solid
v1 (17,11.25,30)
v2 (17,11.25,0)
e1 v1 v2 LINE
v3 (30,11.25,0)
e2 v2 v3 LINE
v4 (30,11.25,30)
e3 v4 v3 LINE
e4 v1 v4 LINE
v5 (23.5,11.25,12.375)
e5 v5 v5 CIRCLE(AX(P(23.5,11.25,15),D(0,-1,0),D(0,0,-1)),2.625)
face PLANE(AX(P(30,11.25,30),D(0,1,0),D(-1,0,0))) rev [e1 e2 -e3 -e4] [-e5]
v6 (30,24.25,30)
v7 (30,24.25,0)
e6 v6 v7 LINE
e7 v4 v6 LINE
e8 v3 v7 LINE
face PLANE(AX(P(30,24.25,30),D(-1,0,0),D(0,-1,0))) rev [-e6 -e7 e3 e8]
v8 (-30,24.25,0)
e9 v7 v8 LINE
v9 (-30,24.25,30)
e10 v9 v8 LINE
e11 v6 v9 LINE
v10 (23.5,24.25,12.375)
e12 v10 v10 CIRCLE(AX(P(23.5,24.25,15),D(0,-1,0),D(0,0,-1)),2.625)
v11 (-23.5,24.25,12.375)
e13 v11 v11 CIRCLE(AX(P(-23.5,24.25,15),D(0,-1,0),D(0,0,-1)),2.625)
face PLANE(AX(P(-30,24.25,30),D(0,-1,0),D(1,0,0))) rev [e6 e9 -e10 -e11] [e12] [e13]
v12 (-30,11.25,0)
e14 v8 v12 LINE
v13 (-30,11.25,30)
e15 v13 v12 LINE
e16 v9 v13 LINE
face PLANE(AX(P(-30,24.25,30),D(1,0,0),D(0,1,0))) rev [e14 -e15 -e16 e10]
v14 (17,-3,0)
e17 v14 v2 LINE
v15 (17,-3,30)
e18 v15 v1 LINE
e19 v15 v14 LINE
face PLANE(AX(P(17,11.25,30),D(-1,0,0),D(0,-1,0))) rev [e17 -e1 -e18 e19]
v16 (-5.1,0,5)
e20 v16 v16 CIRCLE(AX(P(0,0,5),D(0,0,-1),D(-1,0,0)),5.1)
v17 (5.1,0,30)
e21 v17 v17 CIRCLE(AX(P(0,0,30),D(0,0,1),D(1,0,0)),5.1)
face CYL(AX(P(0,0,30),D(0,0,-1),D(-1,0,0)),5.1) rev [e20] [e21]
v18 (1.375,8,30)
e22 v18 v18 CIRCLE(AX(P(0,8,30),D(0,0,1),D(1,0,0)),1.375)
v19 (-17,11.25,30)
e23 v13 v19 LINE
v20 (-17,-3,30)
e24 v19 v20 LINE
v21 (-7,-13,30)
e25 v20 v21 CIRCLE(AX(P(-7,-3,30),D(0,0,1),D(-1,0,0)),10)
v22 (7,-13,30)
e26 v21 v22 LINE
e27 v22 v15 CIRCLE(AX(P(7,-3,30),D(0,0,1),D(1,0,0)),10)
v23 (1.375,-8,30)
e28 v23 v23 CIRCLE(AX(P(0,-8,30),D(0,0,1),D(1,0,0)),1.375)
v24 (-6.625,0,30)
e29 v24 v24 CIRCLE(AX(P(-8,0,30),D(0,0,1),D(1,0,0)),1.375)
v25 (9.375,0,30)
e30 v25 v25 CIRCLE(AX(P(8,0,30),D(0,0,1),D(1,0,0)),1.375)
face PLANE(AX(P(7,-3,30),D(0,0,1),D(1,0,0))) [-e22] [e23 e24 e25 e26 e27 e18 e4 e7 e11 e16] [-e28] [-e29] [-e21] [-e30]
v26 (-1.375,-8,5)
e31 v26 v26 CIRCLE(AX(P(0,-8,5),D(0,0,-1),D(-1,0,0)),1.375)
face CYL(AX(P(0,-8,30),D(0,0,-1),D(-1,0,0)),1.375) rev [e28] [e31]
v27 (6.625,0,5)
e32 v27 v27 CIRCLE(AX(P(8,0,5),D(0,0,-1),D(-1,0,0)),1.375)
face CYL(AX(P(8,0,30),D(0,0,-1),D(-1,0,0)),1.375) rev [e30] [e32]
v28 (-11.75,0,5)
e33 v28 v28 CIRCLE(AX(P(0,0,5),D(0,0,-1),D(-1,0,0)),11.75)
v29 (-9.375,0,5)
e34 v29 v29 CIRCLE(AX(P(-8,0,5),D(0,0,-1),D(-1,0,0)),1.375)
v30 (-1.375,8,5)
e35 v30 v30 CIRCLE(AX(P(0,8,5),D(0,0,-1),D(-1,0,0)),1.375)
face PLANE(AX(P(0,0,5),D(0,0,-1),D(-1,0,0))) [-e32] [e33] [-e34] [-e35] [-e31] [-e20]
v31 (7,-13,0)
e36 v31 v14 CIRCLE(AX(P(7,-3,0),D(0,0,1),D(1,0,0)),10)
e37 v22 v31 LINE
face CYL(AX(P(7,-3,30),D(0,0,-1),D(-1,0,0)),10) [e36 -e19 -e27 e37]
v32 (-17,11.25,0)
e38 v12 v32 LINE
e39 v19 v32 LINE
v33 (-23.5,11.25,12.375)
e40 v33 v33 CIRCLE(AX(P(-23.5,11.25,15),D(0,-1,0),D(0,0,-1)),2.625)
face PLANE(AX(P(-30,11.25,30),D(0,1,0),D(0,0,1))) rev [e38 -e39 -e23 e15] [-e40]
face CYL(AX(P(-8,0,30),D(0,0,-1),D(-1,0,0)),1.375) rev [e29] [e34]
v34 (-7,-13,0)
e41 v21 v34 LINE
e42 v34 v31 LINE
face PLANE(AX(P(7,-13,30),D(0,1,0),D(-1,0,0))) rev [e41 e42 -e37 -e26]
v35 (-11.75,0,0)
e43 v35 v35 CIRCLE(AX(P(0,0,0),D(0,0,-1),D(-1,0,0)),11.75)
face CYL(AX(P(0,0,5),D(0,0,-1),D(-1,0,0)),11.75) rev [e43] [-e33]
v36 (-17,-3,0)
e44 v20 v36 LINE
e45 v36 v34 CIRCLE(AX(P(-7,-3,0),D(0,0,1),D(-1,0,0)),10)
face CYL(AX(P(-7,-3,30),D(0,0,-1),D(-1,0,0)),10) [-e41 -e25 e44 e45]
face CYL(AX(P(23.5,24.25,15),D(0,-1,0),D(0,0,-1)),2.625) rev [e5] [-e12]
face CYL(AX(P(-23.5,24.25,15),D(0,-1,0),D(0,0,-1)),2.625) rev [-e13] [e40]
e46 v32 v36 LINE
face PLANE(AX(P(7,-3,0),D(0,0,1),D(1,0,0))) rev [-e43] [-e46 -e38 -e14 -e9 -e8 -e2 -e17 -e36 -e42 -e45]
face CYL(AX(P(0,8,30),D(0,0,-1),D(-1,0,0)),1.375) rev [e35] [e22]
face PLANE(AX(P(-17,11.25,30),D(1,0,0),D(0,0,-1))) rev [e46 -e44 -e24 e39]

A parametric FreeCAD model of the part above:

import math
import FreeCAD as App
import Part
import Sketcher

V = App.Vector
Q = App.Units.Quantity

doc = App.newDocument("Part")
body = doc.addObject("PartDesign::Body", "Body")

# Sketch on XY plane
sketch1 = body.newObject("Sketcher::SketchObject", "Sketch")
sketch1.AttachmentSupport = (doc.getObject("XY_Plane"), [""])
sketch1.MapMode = "FlatFace"
sketch1.addGeometry([
    Part.LineSegment(V(30, 24.2, 0), V(-30, 24.2, 0)),  # 0
    Part.LineSegment(V(-30, 24.2, 0), V(-30, 11.2, 0)),  # 1
    Part.LineSegment(V(-30, 11.2, 0), V(-17, 11.2, 0)),  # 2
    Part.LineSegment(V(-17, 11.2, 0), V(-17, -3, 0)),  # 3
    Part.ArcOfCircle(Part.Circle(V(-7, -3, 0), V(0, 0, 1), 10), math.radians(180), math.radians(270)),  # 4
    Part.LineSegment(V(-7, -13, 0), V(7, -13, 0)),  # 5
    Part.ArcOfCircle(Part.Circle(V(7, -3, 0), V(0, 0, 1), 10), math.radians(-90), math.radians(0)),  # 6
    Part.LineSegment(V(17, -3, 0), V(17, 11.2, 0)),  # 7
    Part.LineSegment(V(17, 11.2, 0), V(30, 11.2, 0)),  # 8
    Part.LineSegment(V(30, 11.2, 0), V(30, 24.2, 0)),  # 9
    Part.Circle(V(8, 0, 0), V(0, 0, 1), 1.4),  # 10
    Part.Circle(V(0, -8, 0), V(0, 0, 1), 1.4),  # 11
    Part.Circle(V(0, 0, 0), V(0, 0, 1), 5.1),  # 12
    Part.Circle(V(-8, 0, 0), V(0, 0, 1), 1.4),  # 13
    Part.Circle(V(0, 8, 0), V(0, 0, 1), 1.4),  # 14
], False)
sketch1.addConstraint([
    Sketcher.Constraint("Coincident", 0, 2, 1, 1),
    Sketcher.Constraint("Coincident", 1, 2, 2, 1),
    Sketcher.Constraint("Coincident", 2, 2, 3, 1),
    Sketcher.Constraint("Tangent", 3, 2, 4, 1),
    Sketcher.Constraint("Tangent", 4, 2, 5, 1),
    Sketcher.Constraint("Tangent", 5, 2, 6, 1),
    Sketcher.Constraint("Tangent", 6, 2, 7, 1),
    Sketcher.Constraint("Coincident", 7, 2, 8, 1),
    Sketcher.Constraint("Coincident", 8, 2, 9, 1),
    Sketcher.Constraint("Coincident", 9, 2, 0, 1),
    Sketcher.Constraint("Horizontal", 0),
    Sketcher.Constraint("Vertical", 1),
    Sketcher.Constraint("Horizontal", 2),
    Sketcher.Constraint("Vertical", 3),
    Sketcher.Constraint("Horizontal", 5),
    Sketcher.Constraint("Vertical", 7),
    Sketcher.Constraint("Horizontal", 8),
    Sketcher.Constraint("Vertical", 9),
    Sketcher.Constraint("Coincident", 12, 3, -1, 1),
    Sketcher.Constraint("Equal", 4, 6),
    Sketcher.Constraint("Equal", 10, 11),
    Sketcher.Constraint("Equal", 11, 13),
    Sketcher.Constraint("Equal", 13, 14),
    Sketcher.Constraint("Symmetric", 10, 3, 13, 3, -1, 1),
    Sketcher.Constraint("Symmetric", 11, 3, 14, 3, -1, 1),
    Sketcher.Constraint("Symmetric", 2, 2, 7, 2, -2),
    Sketcher.Constraint("PointOnObject", 10, 3, -1),
    Sketcher.Constraint("PointOnObject", 11, 3, -2),
    Sketcher.Constraint("Equal", 2, 8),
    Sketcher.Constraint("Equal", 8, 1),
    Sketcher.Constraint("Radius", 4, Q("10 mm")),
    Sketcher.Constraint("Diameter", 12, Q("10.2 mm")),
    Sketcher.Constraint("Diameter", 10, Q("2.75 mm")),
    Sketcher.Constraint("DistanceX", 0, 2, 0, 1, Q("60 mm")),
    Sketcher.Constraint("DistanceX", 2, 1, 2, 2, Q("13 mm")),
    Sketcher.Constraint("DistanceY", 4, 3, -1, 1, Q("3 mm")),
    Sketcher.Constraint("DistanceX", -1, 1, 10, 3, Q("8 mm")),
    Sketcher.Constraint("DistanceY", 11, 3, -1, 1, Q("8 mm")),
    Sketcher.Constraint("DistanceY", 3, 2, 3, 1, Q("14.25 mm")),
])
pad1 = body.newObject("PartDesign::Pad", "Pad")
pad1.Profile = sketch1
pad1.Length = 30

# Sketch on XY plane
sketch2 = body.newObject("Sketcher::SketchObject", "Sketch001")
sketch2.AttachmentSupport = (doc.getObject("XY_Plane"), [""])
sketch2.MapMode = "FlatFace"
sketch2.addGeometry(Part.Circle(V(0, 0, 0), V(0, 0, 1), 12), False)
sketch2.addConstraint([
    Sketcher.Constraint("Coincident", 0, 3, -1, 1),
    Sketcher.Constraint("Diameter", 0, Q("23.5 mm")),
])
pocket1 = body.newObject("PartDesign::Pocket", "Pocket")
pocket1.Profile = sketch2
pocket1.Length = 5
pocket1.Reversed = True

# Sketch on XZ plane
sketch3 = body.newObject("Sketcher::SketchObject", "Sketch002")
sketch3.AttachmentSupport = (doc.getObject("XZ_Plane"), [""])
sketch3.MapMode = "FlatFace"
sketch3.AttachmentOffset = App.Placement(V(0, 0, -11.25), App.Rotation())
sketch3.addGeometry([
    Part.Circle(V(-23.5, 15, 0), V(0, 0, 1), 2.6),
    Part.Circle(V(23.5, 15, 0), V(0, 0, 1), 2.6),
], False)
sketch3.addConstraint([
    Sketcher.Constraint("Equal", 0, 1),
    Sketcher.Constraint("Symmetric", 0, 3, 1, 3, -2),
    Sketcher.Constraint("Diameter", 0, Q("5.25 mm")),
    Sketcher.Constraint("DistanceY", -1, 1, 0, 3, Q("15 mm")),
    Sketcher.Constraint("DistanceX", 0, 3, 1, 3, Q("47 mm")),
])
pocket2 = body.newObject("PartDesign::Pocket", "Pocket001")
pocket2.Profile = sketch3
pocket2.Type = "ThroughAll"

doc.recompute()
